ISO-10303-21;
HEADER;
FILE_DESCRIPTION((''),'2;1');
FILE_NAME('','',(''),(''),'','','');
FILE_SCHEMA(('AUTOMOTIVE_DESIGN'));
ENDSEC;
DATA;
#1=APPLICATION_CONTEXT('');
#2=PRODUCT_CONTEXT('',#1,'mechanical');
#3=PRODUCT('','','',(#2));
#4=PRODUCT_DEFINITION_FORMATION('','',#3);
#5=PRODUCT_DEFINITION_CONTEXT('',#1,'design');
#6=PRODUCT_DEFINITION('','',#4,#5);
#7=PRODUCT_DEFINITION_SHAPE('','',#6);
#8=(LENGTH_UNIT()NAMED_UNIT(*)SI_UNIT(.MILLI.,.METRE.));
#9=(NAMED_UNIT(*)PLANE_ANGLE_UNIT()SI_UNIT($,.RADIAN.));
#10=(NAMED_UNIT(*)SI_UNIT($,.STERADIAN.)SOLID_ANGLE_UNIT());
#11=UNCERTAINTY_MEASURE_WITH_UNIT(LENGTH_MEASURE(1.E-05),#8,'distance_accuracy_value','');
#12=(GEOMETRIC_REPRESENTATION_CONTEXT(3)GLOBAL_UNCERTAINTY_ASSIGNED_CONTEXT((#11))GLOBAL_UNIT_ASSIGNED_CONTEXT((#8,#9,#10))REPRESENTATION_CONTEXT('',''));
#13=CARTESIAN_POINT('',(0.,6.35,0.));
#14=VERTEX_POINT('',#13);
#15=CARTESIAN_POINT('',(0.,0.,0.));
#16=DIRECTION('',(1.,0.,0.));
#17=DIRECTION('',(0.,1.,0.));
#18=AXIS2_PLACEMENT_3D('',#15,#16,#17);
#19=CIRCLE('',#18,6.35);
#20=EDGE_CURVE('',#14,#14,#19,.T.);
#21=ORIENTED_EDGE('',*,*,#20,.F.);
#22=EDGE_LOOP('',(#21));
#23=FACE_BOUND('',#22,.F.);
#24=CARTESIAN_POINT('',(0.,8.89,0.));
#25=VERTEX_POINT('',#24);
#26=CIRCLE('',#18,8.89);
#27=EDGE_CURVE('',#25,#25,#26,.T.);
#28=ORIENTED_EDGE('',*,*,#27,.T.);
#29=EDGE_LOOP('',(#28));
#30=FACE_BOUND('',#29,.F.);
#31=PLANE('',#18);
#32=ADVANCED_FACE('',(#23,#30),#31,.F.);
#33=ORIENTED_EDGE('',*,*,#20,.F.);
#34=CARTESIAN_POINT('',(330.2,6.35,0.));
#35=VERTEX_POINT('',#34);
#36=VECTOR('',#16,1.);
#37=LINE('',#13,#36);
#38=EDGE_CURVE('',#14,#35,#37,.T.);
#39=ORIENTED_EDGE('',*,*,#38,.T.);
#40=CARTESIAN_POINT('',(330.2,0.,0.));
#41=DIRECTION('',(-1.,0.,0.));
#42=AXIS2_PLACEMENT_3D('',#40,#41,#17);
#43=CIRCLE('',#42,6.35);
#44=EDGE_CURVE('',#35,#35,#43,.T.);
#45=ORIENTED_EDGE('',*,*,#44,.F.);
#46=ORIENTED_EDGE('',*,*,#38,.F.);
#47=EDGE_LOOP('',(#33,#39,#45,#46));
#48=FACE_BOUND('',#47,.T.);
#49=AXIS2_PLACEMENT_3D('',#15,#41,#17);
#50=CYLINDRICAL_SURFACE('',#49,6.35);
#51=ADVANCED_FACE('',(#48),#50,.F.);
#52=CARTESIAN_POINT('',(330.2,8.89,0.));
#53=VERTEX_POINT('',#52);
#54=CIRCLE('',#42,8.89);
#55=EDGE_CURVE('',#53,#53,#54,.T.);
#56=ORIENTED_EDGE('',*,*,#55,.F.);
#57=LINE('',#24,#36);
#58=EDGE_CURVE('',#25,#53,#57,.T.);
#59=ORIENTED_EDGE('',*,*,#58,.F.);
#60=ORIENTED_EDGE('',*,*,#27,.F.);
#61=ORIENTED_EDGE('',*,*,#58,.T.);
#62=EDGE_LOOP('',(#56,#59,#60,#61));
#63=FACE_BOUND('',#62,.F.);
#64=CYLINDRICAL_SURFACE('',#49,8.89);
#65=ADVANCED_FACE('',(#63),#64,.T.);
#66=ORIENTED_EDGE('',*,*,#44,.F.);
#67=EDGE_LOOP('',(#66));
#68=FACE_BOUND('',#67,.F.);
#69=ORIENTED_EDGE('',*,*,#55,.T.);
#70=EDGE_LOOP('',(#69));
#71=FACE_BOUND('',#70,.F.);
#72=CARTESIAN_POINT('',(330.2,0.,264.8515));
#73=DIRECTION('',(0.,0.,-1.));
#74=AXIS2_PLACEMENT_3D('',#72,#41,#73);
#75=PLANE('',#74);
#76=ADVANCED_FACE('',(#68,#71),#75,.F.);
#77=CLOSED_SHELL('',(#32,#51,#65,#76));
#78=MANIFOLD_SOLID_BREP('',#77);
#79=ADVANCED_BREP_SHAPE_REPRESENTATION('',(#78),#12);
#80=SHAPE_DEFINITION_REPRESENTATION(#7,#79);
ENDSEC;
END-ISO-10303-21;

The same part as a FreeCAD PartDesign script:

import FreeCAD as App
import Part
import Sketcher
from FreeCAD import Vector
Q = App.Units.Quantity

doc = App.newDocument("Part")
body = doc.addObject("PartDesign::Body", "Body")

sketch1 = body.newObject("Sketcher::SketchObject", "Sketch")
sketch1.AttachmentSupport = (doc.getObject("YZ_Plane"), [""])
sketch1.MapMode = "FlatFace"
sketch1.addGeometry(Part.Circle(Vector(0, 0, 0), Vector(0, 0, 1), 8.89), False)
sketch1.addGeometry(Part.Circle(Vector(0, 0, 0), Vector(0, 0, 1), 6.35), False)
sketch1.addConstraint(Sketcher.Constraint("Coincident", 0, 3, -1, 1))
sketch1.addConstraint(Sketcher.Constraint("Coincident", 1, 3, -1, 1))
sketch1.addConstraint(Sketcher.Constraint("Diameter", 1, Q("0.5 in")))
sketch1.addConstraint(Sketcher.Constraint("Diameter", 0, Q("0.7 in")))
pad1 = body.newObject("PartDesign::Pad", "Pad")
pad1.Profile = sketch1
pad1.Length = Q("26.5 in")

sketch2 = body.newObject("Sketcher::SketchObject", "Sketch001")
sketch2.AttachmentSupport = (doc.getObject("XZ_Plane"), [""])
sketch2.MapMode = "FlatFace"
sketch2.addGeometry(Part.LineSegment(Vector(897.1642, -8.89, 0), Vector(330.2, -8.89, 0)), False)
sketch2.addGeometry(Part.LineSegment(Vector(330.2, -8.89, 0), Vector(330.2, 264.8515, 0)), False)
sketch2.addGeometry(Part.LineSegment(Vector(330.2, 264.8515, 0), Vector(897.1642, 264.8515, 0)), False)
sketch2.addGeometry(Part.LineSegment(Vector(897.1642, 264.8515, 0), Vector(897.1642, -8.89, 0)), False)
sketch2.addConstraint(Sketcher.Constraint("Coincident", 0, 2, 1, 1))
sketch2.addConstraint(Sketcher.Constraint("Coincident", 1, 2, 2, 1))
sketch2.addConstraint(Sketcher.Constraint("Coincident", 2, 2, 3, 1))
sketch2.addConstraint(Sketcher.Constraint("Coincident", 3, 2, 0, 1))
sketch2.addConstraint(Sketcher.Constraint("Horizontal", 0))
sketch2.addConstraint(Sketcher.Constraint("Vertical", 1))
sketch2.addConstraint(Sketcher.Constraint("Horizontal", 2))
sketch2.addConstraint(Sketcher.Constraint("Vertical", 3))
sketch2.addConstraint(Sketcher.Constraint("DistanceX", -1, 1, 0, 2, Q("13 in")))
sketch2.addConstraint(Sketcher.Constraint("DistanceY", 0, 2, -1, 1, Q("0.35 in")))
sketch2.addConstraint(Sketcher.Constraint("DistanceX", 0, 2, 0, 1, 566.9642))
sketch2.addConstraint(Sketcher.Constraint("DistanceY", 1, 1, 1, 2, 273.7415))
pocket1 = body.newObject("PartDesign::Pocket", "Pocket")
pocket1.Profile = sketch2
pocket1.Length = Q("1 in")
pocket1.Midplane = True

doc.recompute()
